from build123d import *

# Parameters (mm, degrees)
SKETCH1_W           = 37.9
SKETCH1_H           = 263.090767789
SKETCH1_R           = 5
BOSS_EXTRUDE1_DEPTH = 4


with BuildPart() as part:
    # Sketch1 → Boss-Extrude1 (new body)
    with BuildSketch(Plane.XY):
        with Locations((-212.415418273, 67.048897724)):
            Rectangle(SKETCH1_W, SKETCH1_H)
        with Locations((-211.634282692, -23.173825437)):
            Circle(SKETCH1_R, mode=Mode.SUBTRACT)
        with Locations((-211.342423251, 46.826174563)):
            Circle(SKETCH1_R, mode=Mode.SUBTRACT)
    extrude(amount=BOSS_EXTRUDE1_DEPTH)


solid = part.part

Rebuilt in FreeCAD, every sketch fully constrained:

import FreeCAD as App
import Part
import Sketcher
from FreeCAD import Vector


def add_polygon(sketch, points):
    """Adds a closed chain of lines whose ends are joined by coincident constraints."""
    first, n = sketch.GeometryCount, len(points)
    for a, b in zip(points, points[1:] + points[:1]):
        sketch.addGeometry(Part.LineSegment(App.Vector(*a, 0), App.Vector(*b, 0)), False)
    for i in range(n):
        sketch.addConstraint(Sketcher.Constraint("Coincident", first + i, 2, first + (i + 1) % n, 1))

doc = App.newDocument("Part")
params = doc.addObject("Spreadsheet::Sheet", "Params")
for row, (alias, value) in enumerate([
    ("sketch1_diameter", "10 mm"),
    ("sketch1_width", "37.9 mm"),
    ("pad1_length", "4 mm"),
], start=1):
    params.set(f"A{row}", alias)
    params.set(f"B{row}", "=" + value)
    params.setAlias(f"B{row}", alias)

body = doc.addObject("PartDesign::Body", "Body")

# Sketch on XY plane
sketch1 = doc.addObject("Sketcher::SketchObject", "Sketch")
body.addObject(sketch1)
sketch1.AttachmentSupport = (doc.XY_Plane, [""])
sketch1.MapMode = "FlatFace"
add_polygon(sketch1, [(-231, 199), (-231, -64), (-193, -64), (-193, 199)])  # lines 0-3
sketch1.addGeometry(Part.Circle(Vector(-212, -23, 0), Vector(0, 0, 1), 5), False)  # 4
sketch1.addGeometry(Part.Circle(Vector(-211, 47, 0), Vector(0, 0, 1), 5), False)  # 5
sketch1.addConstraint(Sketcher.Constraint("Vertical", 0))
sketch1.addConstraint(Sketcher.Constraint("Horizontal", 1))
sketch1.addConstraint(Sketcher.Constraint("Vertical", 2))
sketch1.addConstraint(Sketcher.Constraint("Horizontal", 3))
sketch1.addConstraint(Sketcher.Constraint("Equal", 4, 5))
sketch1.addConstraint(Sketcher.Constraint("Diameter", 4, 10.0))
sketch1.addConstraint(Sketcher.Constraint("DistanceX", 1, 1, 1, 2, 37.9))
sketch1.addConstraint(Sketcher.Constraint("DistanceY", 4, 3, 5, 3, 70.0))
sketch1.addConstraint(Sketcher.Constraint("DistanceY", 0, 2, 0, 1, 263.090768))
sketch1.addConstraint(Sketcher.Constraint("DistanceX", 0, 2, -1, 1, 231.365418))
sketch1.addConstraint(Sketcher.Constraint("DistanceY", -1, 1, 2, 2, 198.594282))
sketch1.addConstraint(Sketcher.Constraint("DistanceX", 4, 3, 5, 3, 0.291859))
sketch1.addConstraint(Sketcher.Constraint("DistanceY", 0, 2, 4, 3, 41.322661))
sketch1.addConstraint(Sketcher.Constraint("DistanceX", 4, 3, -1, 1, 211.634283))
sketch1.setExpression("Constraints[9]", "Params.sketch1_diameter")
sketch1.setExpression("Constraints[10]", "Params.sketch1_width")
pad1 = doc.addObject("PartDesign::Pad", "Pad")
body.addObject(pad1)
pad1.Profile = sketch1
pad1.setExpression("Length", "Params.pad1_length")

doc.recompute()
